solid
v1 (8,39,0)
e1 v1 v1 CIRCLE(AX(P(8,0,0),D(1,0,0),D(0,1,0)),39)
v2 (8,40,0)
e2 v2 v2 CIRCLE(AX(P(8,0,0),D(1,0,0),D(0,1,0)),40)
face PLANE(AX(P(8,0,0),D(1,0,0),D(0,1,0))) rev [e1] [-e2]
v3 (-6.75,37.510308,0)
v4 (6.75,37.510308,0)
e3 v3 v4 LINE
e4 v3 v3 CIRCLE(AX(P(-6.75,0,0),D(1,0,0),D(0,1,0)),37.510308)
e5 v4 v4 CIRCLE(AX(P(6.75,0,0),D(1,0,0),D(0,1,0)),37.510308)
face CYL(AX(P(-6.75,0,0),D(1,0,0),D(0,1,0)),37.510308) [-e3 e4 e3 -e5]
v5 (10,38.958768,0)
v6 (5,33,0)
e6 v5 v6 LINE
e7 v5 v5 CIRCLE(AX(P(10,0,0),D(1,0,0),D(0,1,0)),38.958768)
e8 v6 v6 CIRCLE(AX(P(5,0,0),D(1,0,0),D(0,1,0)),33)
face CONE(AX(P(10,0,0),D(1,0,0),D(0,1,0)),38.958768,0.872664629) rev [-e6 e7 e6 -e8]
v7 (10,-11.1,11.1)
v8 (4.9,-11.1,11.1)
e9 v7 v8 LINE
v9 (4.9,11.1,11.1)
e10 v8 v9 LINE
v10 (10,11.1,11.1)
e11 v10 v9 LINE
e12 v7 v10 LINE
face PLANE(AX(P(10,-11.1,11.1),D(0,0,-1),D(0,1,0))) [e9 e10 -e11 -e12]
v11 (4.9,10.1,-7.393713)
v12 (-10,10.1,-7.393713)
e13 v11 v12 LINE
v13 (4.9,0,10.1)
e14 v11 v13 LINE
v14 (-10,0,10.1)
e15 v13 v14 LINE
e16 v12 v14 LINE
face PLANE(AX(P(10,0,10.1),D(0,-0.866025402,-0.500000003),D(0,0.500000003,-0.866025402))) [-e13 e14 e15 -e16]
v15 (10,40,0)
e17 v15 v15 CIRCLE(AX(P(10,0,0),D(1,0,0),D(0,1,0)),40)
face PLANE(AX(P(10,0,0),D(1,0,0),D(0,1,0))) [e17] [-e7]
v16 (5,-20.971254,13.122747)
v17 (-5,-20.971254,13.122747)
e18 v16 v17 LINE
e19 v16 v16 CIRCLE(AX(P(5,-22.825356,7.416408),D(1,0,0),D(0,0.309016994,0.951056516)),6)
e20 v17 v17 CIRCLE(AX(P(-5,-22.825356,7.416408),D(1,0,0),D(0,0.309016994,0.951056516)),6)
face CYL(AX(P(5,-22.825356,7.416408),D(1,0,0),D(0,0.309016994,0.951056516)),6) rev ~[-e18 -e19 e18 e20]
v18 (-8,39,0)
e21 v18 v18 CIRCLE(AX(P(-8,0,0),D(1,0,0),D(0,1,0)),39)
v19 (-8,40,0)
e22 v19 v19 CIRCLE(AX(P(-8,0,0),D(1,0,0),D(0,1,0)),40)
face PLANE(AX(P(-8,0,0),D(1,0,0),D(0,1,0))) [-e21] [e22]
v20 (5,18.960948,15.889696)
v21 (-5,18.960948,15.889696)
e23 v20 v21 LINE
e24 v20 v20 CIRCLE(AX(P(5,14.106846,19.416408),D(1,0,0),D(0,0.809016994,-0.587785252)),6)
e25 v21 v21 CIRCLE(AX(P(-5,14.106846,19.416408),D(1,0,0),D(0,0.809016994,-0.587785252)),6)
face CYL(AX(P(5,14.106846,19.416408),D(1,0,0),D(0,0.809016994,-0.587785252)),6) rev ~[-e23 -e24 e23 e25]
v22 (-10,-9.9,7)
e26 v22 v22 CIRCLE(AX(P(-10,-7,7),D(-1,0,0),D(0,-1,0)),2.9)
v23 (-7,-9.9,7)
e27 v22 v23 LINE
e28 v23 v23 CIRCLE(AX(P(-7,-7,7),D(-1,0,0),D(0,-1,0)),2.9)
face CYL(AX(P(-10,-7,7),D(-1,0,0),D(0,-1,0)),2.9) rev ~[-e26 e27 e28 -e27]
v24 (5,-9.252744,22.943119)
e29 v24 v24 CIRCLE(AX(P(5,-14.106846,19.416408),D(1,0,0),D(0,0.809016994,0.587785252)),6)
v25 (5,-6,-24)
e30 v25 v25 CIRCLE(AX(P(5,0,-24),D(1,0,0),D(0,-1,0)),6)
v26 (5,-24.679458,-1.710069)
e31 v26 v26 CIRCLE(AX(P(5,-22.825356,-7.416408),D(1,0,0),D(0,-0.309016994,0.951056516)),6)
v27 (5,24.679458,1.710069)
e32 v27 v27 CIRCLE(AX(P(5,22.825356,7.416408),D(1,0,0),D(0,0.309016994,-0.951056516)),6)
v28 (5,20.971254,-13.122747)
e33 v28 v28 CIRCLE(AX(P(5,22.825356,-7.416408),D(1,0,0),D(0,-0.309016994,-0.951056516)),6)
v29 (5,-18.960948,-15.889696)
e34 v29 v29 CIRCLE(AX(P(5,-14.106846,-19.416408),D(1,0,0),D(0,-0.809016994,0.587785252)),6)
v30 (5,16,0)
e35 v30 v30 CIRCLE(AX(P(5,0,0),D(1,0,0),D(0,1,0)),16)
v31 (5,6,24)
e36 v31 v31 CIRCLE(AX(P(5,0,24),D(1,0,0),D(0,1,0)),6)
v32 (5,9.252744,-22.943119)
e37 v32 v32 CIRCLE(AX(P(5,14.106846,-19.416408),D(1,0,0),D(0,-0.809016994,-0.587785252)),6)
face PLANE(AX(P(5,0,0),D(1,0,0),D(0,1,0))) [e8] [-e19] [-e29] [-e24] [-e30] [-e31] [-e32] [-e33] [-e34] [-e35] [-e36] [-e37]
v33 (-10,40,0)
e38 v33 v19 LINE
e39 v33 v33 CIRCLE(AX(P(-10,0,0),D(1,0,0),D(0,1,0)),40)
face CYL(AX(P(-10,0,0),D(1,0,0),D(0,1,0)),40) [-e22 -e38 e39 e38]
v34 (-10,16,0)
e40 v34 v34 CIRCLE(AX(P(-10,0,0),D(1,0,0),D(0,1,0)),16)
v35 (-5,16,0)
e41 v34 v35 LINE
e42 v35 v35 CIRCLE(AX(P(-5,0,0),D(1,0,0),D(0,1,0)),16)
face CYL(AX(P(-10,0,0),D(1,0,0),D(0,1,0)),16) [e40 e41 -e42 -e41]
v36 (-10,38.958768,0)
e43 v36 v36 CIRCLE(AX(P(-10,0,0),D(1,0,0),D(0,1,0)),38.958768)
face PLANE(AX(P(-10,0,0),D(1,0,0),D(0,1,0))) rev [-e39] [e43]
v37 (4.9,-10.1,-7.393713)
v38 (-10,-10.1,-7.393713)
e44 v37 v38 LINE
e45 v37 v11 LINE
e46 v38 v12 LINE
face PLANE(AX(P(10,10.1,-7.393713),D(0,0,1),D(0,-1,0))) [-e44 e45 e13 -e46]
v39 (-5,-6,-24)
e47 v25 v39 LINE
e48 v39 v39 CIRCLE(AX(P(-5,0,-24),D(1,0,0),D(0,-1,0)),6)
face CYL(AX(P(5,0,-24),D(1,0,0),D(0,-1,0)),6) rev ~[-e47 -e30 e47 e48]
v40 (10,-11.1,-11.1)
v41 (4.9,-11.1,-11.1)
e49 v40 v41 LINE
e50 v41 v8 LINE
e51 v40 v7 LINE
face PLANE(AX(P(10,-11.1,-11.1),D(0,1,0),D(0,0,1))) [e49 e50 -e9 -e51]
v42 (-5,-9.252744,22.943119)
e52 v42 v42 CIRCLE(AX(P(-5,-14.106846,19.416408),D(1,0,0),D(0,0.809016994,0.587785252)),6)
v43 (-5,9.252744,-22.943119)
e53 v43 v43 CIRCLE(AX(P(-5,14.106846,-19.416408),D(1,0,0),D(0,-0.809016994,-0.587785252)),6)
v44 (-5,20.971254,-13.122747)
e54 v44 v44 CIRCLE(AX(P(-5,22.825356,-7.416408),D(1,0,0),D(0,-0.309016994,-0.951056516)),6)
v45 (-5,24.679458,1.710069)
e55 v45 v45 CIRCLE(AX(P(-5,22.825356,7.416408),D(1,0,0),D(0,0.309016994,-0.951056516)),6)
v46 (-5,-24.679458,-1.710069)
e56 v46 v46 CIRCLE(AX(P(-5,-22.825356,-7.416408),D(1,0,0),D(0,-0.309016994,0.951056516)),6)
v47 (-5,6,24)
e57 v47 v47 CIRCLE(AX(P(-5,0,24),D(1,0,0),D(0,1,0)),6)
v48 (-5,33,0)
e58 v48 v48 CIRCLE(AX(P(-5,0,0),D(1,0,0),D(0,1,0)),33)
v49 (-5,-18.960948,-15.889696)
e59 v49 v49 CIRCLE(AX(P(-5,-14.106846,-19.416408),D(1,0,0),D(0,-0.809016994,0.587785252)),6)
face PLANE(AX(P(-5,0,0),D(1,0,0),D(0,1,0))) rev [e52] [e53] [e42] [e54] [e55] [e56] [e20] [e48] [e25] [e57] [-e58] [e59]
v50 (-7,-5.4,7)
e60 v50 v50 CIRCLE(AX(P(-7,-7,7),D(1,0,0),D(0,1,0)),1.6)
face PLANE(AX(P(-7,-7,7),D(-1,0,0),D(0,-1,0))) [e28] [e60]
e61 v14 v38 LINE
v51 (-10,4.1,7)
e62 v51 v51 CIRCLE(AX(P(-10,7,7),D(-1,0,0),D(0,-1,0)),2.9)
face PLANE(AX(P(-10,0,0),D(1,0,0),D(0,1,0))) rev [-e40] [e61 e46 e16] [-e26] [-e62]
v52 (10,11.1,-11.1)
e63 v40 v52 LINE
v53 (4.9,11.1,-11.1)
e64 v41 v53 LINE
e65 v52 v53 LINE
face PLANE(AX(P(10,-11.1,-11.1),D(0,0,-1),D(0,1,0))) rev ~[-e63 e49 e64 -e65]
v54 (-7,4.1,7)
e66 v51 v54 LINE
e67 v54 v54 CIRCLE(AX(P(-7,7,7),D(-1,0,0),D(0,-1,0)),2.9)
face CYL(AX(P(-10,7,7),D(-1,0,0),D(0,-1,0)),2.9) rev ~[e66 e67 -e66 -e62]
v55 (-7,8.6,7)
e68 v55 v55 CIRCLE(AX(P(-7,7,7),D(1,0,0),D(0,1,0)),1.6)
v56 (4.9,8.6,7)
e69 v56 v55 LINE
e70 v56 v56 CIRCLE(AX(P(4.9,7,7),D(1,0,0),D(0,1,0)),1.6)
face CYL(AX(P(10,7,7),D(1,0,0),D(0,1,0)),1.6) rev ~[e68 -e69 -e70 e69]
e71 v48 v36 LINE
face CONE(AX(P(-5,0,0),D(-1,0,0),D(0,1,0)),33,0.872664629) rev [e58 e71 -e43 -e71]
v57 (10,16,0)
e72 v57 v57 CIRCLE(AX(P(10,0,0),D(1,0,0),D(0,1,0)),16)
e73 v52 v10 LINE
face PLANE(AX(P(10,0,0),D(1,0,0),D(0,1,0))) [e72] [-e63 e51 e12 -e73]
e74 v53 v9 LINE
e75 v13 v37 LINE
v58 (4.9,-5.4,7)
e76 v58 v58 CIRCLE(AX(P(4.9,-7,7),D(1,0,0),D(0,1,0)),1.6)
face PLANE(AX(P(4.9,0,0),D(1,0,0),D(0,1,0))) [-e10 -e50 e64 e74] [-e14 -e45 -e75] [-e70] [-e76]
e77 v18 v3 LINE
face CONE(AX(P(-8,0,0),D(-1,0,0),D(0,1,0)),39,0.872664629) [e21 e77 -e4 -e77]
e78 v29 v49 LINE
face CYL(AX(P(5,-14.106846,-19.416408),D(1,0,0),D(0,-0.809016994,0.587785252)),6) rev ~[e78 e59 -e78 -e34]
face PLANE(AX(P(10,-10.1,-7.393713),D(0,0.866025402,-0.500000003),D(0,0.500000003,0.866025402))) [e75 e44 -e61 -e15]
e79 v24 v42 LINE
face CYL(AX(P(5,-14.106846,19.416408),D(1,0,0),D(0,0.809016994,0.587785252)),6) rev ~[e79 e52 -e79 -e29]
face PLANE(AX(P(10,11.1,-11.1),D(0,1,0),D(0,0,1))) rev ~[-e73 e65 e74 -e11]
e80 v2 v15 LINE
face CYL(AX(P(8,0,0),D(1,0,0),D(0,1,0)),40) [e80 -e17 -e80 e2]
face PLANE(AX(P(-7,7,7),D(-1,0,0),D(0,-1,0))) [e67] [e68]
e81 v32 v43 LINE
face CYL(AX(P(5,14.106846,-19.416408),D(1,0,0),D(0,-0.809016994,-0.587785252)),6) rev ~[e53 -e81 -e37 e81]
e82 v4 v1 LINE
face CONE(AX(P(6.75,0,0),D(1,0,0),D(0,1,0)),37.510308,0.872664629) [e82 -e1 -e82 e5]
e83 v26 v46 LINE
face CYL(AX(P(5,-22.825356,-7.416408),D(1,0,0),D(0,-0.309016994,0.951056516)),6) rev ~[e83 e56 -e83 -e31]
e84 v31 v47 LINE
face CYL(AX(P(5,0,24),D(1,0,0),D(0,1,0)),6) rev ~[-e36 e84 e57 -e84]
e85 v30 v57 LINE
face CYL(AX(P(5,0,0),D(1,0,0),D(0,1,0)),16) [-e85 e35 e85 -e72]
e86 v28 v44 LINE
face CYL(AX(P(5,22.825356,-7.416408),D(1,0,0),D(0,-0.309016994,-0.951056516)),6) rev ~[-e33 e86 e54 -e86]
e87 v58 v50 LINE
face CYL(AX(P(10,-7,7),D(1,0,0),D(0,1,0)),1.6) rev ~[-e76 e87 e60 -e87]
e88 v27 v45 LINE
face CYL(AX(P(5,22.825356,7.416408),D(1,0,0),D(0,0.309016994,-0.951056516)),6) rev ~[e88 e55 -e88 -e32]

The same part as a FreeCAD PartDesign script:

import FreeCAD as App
import Part
import Sketcher
from FreeCAD import Vector
Q = App.Units.Quantity


def add_polygon(sketch, points):
    """Adds a closed chain of lines whose ends are joined by coincident constraints."""
    first, n = sketch.GeometryCount, len(points)
    for a, b in zip(points, points[1:] + points[:1]):
        sketch.addGeometry(Part.LineSegment(App.Vector(*a, 0), App.Vector(*b, 0)), False)
    for i in range(n):
        sketch.addConstraint(Sketcher.Constraint("Coincident", first + i, 2, first + (i + 1) % n, 1))

doc = App.newDocument("Part")
body = doc.addObject("PartDesign::Body", "Body")

# Sketch on XY plane
sketch1 = body.newObject("Sketcher::SketchObject", "Sketch")
sketch1.AttachmentSupport = (doc.getObject("XY_Plane"), [""])
sketch1.MapMode = "FlatFace"
add_polygon(sketch1, [(8, 40), (8, 39), (6.8, 37.5), (-6.8, 37.5), (-8, 39), (-8, 40), (-10, 40), (-10, 39), (-5, 33), (-5, 16), (-10, 16), (-10, 1), (10, 1), (10, 16), (5, 16), (5, 33), (10, 39), (10, 40)])  # lines 0-17
sketch1.addConstraint([
    Sketcher.Constraint("Vertical", 0),
    Sketcher.Constraint("Horizontal", 2),
    Sketcher.Constraint("Vertical", 4),
    Sketcher.Constraint("Horizontal", 5),
    Sketcher.Constraint("Vertical", 6),
    Sketcher.Constraint("Vertical", 8),
    Sketcher.Constraint("Horizontal", 9),
    Sketcher.Constraint("Vertical", 10),
    Sketcher.Constraint("Horizontal", 11),
    Sketcher.Constraint("Vertical", 12),
    Sketcher.Constraint("Horizontal", 13),
    Sketcher.Constraint("Vertical", 14),
    Sketcher.Constraint("Vertical", 16),
    Sketcher.Constraint("Horizontal", 17),
    Sketcher.Constraint("Symmetric", 0, 2, 3, 2, -2),
    Sketcher.Constraint("Symmetric", 9, 2, 12, 2, -2),
    Sketcher.Constraint("Symmetric", 7, 2, 14, 2, -2),
    Sketcher.Constraint("Symmetric", 6, 2, 15, 2, -2),
    Sketcher.Constraint("Parallel", 3, 7),
    Sketcher.Constraint("Parallel", 1, 15),
    Sketcher.Constraint("Horizontal", 5, 2, 16, 2),
    Sketcher.Constraint("Vertical", 6, 2, 9, 2),
    Sketcher.Constraint("DistanceX", 5, 2, 5, 1, Q("2 mm")),
    Sketcher.Constraint("DistanceX", 9, 2, 9, 1, Q("5 mm")),
    Sketcher.Constraint("DistanceX", 11, 1, 11, 2, Q("20 mm")),
    Sketcher.Constraint("DistanceY", 0, 2, 0, 1, Q("1 mm")),
    Sketcher.Constraint("DistanceY", 8, 2, 8, 1, Q("17 mm")),
    Sketcher.Constraint("DistanceY", 10, 2, 10, 1, Q("15 mm")),
    Sketcher.Constraint("Angle", 1, Q("-130 deg")),
    Sketcher.Constraint("DistanceX", 2, 2, 2, 1, Q("13.5 mm")),
    Sketcher.Constraint("DistanceY", -1, 1, 0, 2, Q("39 mm")),
    Sketcher.Constraint("DistanceY", -1, 1, 7, 2, Q("33 mm")),
])
revolution = body.newObject("PartDesign::Revolution", "Revolution")
revolution.Profile = sketch1
revolution.ReferenceAxis = (sketch1, ["H_Axis"])
revolution.Angle = 360

# Sketch on YZ plane
sketch2 = body.newObject("Sketcher::SketchObject", "Sketch001")
sketch2.AttachmentSupport = (doc.getObject("YZ_Plane"), [""])
sketch2.MapMode = "FlatFace"
sketch2.AttachmentOffset = App.Placement(Vector(0, 0, 10), App.Rotation())
sketch2.addGeometry(Part.Circle(Vector(-7, 7, 0), Vector(0, 0, 1), 1.6), False)  # 0
sketch2.addGeometry(Part.Circle(Vector(7, 7, 0), Vector(0, 0, 1), 1.6), False)  # 1
add_polygon(sketch2, [(0, 10.1), (-10.1, -7.4), (10.1, -7.4)])  # lines 2-4
sketch2.addConstraint([
    Sketcher.Constraint("Horizontal", 3),
    Sketcher.Constraint("Equal", 0, 1),
    Sketcher.Constraint("Symmetric", 0, 3, 1, 3, -2),
    Sketcher.Constraint("PointOnObject", 4, 2, -2),
    Sketcher.Constraint("Equal", 2, 4),
    Sketcher.Constraint("Diameter", 0, Q("3.2 mm")),
    Sketcher.Constraint("Angle", 2, Q("-120 deg")),
    Sketcher.Constraint("DistanceX", 3, 1, 3, 2, Q("20.2 mm")),
    Sketcher.Constraint("DistanceX", 0, 3, -1, 1, Q("7 mm")),
    Sketcher.Constraint("DistanceY", -1, 1, 0, 3, Q("7 mm")),
    Sketcher.Constraint("DistanceY", -1, 1, 4, 2, Q("10.1 mm")),
])
pocket1 = body.newObject("PartDesign::Pocket", "Pocket")
pocket1.Profile = sketch2
pocket1.Type = "ThroughAll"

# Sketch on YZ plane
sketch3 = body.newObject("Sketcher::SketchObject", "Sketch002")
sketch3.AttachmentSupport = (doc.getObject("YZ_Plane"), [""])
sketch3.MapMode = "FlatFace"
sketch3.AttachmentOffset = App.Placement(Vector(0, 0, 10), App.Rotation())
add_polygon(sketch3, [(-11, 11), (-11, -11), (11, -11), (11, 11)])  # lines 0-3
sketch3.addConstraint([
    Sketcher.Constraint("Vertical", 0),
    Sketcher.Constraint("Horizontal", 1),
    Sketcher.Constraint("Vertical", 2),
    Sketcher.Constraint("Horizontal", 3),
    Sketcher.Constraint("Symmetric", 0, 2, 2, 2, -1, 1),
    Sketcher.Constraint("Equal", 3, 0),
    Sketcher.Constraint("DistanceX", 1, 1, 1, 2, Q("22.2 mm")),
])
pocket2 = body.newObject("PartDesign::Pocket", "Pocket001")
pocket2.Profile = sketch3
pocket2.Length = 5.1

# Sketch on YZ plane
sketch4 = body.newObject("Sketcher::SketchObject", "Sketch003")
sketch4.AttachmentSupport = (doc.getObject("YZ_Plane"), [""])
sketch4.MapMode = "FlatFace"
sketch4.AttachmentOffset = App.Placement(Vector(0, 0, -10), App.Rotation())
sketch4.addGeometry([
    Part.Circle(Vector(7, 7, 0), Vector(0, 0, 1), 2.9),
    Part.Circle(Vector(-7, 7, 0), Vector(0, 0, 1), 2.9),
], False)
sketch4.addConstraint([
    Sketcher.Constraint("Equal", 0, 1),
    Sketcher.Constraint("Symmetric", 0, 3, 1, 3, -2),
    Sketcher.Constraint("Diameter", 0, Q("5.8 mm")),
    Sketcher.Constraint("DistanceX", -1, 1, 0, 3, Q("7 mm")),
    Sketcher.Constraint("DistanceY", -1, 1, 0, 3, Q("7 mm")),
])
pocket3 = body.newObject("PartDesign::Pocket", "Pocket002")
pocket3.Profile = sketch4
pocket3.Length = 3
pocket3.Reversed = True

# Sketch on YZ plane
sketch5 = body.newObject("Sketcher::SketchObject", "Sketch004")
sketch5.AttachmentSupport = (doc.getObject("YZ_Plane"), [""])
sketch5.MapMode = "FlatFace"
sketch5.AttachmentOffset = App.Placement(Vector(0, 0, 5), App.Rotation())
sketch5.addGeometry(Part.Circle(Vector(0, 24, 0), Vector(0, 0, 1), 6), False)
sketch5.addConstraint([
    Sketcher.Constraint("PointOnObject", 0, 3, -2),
    Sketcher.Constraint("Diameter", 0, Q("12 mm")),
    Sketcher.Constraint("DistanceY", -1, 1, 0, 3, Q("24 mm")),
])
pocket4 = body.newObject("PartDesign::Pocket", "Pocket003")
pocket4.Profile = sketch5
pocket4.Type = "ThroughAll"
doc.recompute()

polarpattern = body.newObject("PartDesign::PolarPattern", "PolarPattern")
polarpattern.Originals = [pocket4]
polarpattern.Axis = (doc.getObject("X_Axis"), [""])
polarpattern.Angle = 360
polarpattern.Occurrences = 10
body.Tip = polarpattern

doc.recompute()
